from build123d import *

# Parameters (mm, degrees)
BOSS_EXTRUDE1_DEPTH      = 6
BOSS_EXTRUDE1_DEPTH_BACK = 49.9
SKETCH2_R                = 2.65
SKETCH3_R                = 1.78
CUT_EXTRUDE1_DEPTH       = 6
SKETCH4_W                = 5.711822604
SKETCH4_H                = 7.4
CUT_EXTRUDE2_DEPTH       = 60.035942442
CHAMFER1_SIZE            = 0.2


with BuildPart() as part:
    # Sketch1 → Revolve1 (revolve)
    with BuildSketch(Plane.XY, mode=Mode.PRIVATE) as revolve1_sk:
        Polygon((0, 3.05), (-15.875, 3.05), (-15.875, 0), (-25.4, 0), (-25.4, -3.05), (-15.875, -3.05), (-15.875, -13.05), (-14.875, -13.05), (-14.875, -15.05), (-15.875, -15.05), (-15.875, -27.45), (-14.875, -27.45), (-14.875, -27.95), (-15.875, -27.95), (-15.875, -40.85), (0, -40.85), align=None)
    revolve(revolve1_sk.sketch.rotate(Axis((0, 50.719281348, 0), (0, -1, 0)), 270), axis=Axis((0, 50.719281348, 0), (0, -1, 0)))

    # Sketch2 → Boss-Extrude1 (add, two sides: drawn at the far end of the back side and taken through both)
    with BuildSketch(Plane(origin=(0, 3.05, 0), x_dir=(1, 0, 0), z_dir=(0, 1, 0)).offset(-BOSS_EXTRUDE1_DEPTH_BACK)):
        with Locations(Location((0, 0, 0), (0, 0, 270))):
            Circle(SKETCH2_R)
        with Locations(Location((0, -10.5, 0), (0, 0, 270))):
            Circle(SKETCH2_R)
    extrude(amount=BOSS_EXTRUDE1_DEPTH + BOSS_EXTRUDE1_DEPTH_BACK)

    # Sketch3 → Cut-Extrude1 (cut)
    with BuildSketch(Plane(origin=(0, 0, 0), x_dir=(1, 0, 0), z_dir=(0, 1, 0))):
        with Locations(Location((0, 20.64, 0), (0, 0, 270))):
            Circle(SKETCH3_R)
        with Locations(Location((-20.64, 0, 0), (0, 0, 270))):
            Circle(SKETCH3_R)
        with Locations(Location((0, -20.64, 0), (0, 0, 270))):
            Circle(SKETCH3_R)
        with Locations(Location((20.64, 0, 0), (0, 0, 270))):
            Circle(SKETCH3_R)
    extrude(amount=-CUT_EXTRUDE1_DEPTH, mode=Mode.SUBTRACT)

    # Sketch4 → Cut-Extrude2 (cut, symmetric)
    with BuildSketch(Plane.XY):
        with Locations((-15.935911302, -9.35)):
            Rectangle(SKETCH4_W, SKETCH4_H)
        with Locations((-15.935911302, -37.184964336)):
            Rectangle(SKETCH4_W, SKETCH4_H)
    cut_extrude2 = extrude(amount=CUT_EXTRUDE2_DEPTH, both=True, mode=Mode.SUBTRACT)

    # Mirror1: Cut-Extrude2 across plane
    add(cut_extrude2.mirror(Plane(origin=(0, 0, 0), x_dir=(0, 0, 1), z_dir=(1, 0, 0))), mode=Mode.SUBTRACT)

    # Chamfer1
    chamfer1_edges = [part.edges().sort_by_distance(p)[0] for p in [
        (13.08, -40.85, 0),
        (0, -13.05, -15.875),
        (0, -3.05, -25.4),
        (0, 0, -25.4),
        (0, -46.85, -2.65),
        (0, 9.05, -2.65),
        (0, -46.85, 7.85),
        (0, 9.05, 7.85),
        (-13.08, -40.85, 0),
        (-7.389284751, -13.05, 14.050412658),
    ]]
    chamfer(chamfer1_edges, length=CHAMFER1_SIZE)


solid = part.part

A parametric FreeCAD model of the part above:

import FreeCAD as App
import Part
import Sketcher
Q = App.Units.Quantity


def edges_at(feature, points):
    """Names of the edges that pass closest to the given points."""
    edges = feature.Shape.Edges
    near = lambda p: min(range(len(edges)), key=lambda i: edges[i].distToShape(Part.Vertex(*p))[0])
    return sorted({f"Edge{near(p) + 1}" for p in points})


def add_polygon(sketch, points):
    """Adds a closed chain of lines whose ends are joined by coincident constraints."""
    first, n = sketch.GeometryCount, len(points)
    for a, b in zip(points, points[1:] + points[:1]):
        sketch.addGeometry(Part.LineSegment(App.Vector(*a, 0), App.Vector(*b, 0)), False)
    for i in range(n):
        sketch.addConstraint(Sketcher.Constraint("Coincident", first + i, 2, first + (i + 1) % n, 1))

doc = App.newDocument("Part")
params = doc.addObject("Spreadsheet::Sheet", "Params")
for row, (alias, value) in enumerate([
    ("sketch1_width", "1 mm"),
    ("sketch1_height", "10 mm"),
    ("sketch1_height2", "2 mm"),
    ("sketch1_height3", "12.4 mm"),
    ("sketch1_height4", "0.5 mm"),
    ("revolution_angle", "360 deg"),
    ("sketch2_diameter", "5.3 mm"),
    ("pad1_length", "6 mm"),
    ("pad1_length2", "49.9 mm"),
    ("sketch3_diameter", "3.56 mm"),
    ("pocket1_length", "6 mm"),
    ("sketch4_height", "7.4 mm"),
    ("pocket2_length", "120.071885 mm"),
    ("chamfer_size", "0.2 mm"),
], start=1):
    params.set(f"A{row}", alias)
    params.set(f"B{row}", "=" + value)
    params.setAlias(f"B{row}", alias)

body = doc.addObject("PartDesign::Body", "Body")

sketch1 = body.newObject("Sketcher::SketchObject", "Sketch")
sketch1.AttachmentSupport = (doc.getObject("XY_Plane"), [""])
sketch1.MapMode = "FlatFace"
add_polygon(sketch1, [(0, 3), (-15.9, 3), (-15.9, 0), (-25.4, 0), (-25.4, -3), (-15.9, -3), (-15.9, -13.1), (-14.9, -13.1), (-14.9, -15.1), (-15.9, -15.1), (-15.9, -27.4), (-14.9, -27.4), (-14.9, -27.9), (-15.9, -27.9), (-15.9, -40.9), (0, -40.9)])
sketch1.addConstraint(Sketcher.Constraint("Horizontal", 0))
sketch1.addConstraint(Sketcher.Constraint("Vertical", 1))
sketch1.addConstraint(Sketcher.Constraint("Horizontal", 2))
sketch1.addConstraint(Sketcher.Constraint("Vertical", 3))
sketch1.addConstraint(Sketcher.Constraint("Horizontal", 4))
sketch1.addConstraint(Sketcher.Constraint("Vertical", 5))
sketch1.addConstraint(Sketcher.Constraint("Horizontal", 6))
sketch1.addConstraint(Sketcher.Constraint("Vertical", 7))
sketch1.addConstraint(Sketcher.Constraint("Horizontal", 8))
sketch1.addConstraint(Sketcher.Constraint("Vertical", 9))
sketch1.addConstraint(Sketcher.Constraint("Horizontal", 10))
sketch1.addConstraint(Sketcher.Constraint("Vertical", 11))
sketch1.addConstraint(Sketcher.Constraint("Horizontal", 12))
sketch1.addConstraint(Sketcher.Constraint("Vertical", 13))
sketch1.addConstraint(Sketcher.Constraint("Horizontal", 14))
sketch1.addConstraint(Sketcher.Constraint("Vertical", 15))
sketch1.addConstraint(Sketcher.Constraint("Symmetric", 0, 2, 4, 2, -1))
sketch1.addConstraint(Sketcher.Constraint("PointOnObject", 1, 2, -1))
sketch1.addConstraint(Sketcher.Constraint("PointOnObject", 14, 2, -2))
sketch1.addConstraint(Sketcher.Constraint("Vertical", 5, 2, 8, 2))
sketch1.addConstraint(Sketcher.Constraint("Vertical", 7, 2, 10, 2))
sketch1.addConstraint(Sketcher.Constraint("Vertical", 9, 2, 12, 2))
sketch1.addConstraint(Sketcher.Constraint("DistanceX", 6, 1, 6, 2, Q("1 mm")))
sketch1.addConstraint(Sketcher.Constraint("DistanceY", 5, 2, 5, 1, Q("10 mm")))
sketch1.addConstraint(Sketcher.Constraint("DistanceY", 7, 2, 7, 1, Q("2 mm")))
sketch1.addConstraint(Sketcher.Constraint("DistanceY", 9, 2, 9, 1, Q("12.4 mm")))
sketch1.addConstraint(Sketcher.Constraint("DistanceY", 11, 2, 11, 1, Q("0.5 mm")))
sketch1.addConstraint(Sketcher.Constraint("DistanceY", 13, 2, 13, 1, Q("12.9 mm")))
sketch1.addConstraint(Sketcher.Constraint("DistanceY", 15, 1, 15, 2, Q("43.9 mm")))
sketch1.addConstraint(Sketcher.Constraint("DistanceX", 2, 2, -1, 1, Q("25.4 mm")))
sketch1.addConstraint(Sketcher.Constraint("DistanceX", 0, 2, 0, 1, Q("15.875 mm")))
sketch1.setExpression("Constraints[38]", "Params.sketch1_width")
sketch1.setExpression("Constraints[39]", "Params.sketch1_height")
sketch1.setExpression("Constraints[40]", "Params.sketch1_height2")
sketch1.setExpression("Constraints[41]", "Params.sketch1_height3")
sketch1.setExpression("Constraints[42]", "Params.sketch1_height4")
revolution = body.newObject("PartDesign::Revolution", "Revolution")
revolution.Profile = sketch1
revolution.ReferenceAxis = (sketch1, ["V_Axis"])
revolution.setExpression("Angle", "Params.revolution_angle")

sketch2 = body.newObject("Sketcher::SketchObject", "Sketch001")
sketch2.AttachmentSupport = (doc.getObject("XZ_Plane"), [""])
sketch2.MapMode = "FlatFace"
sketch2.AttachmentOffset = App.Placement(App.Vector(0, 0, -3.05), App.Rotation())
sketch2.addGeometry(Part.Circle(App.Vector(0, 0, 0), App.Vector(0, 0, 1), 2.6), False)
sketch2.addGeometry(Part.Circle(App.Vector(0, 10.5, 0), App.Vector(0, 0, 1), 2.6), False)
sketch2.addConstraint(Sketcher.Constraint("Coincident", 0, 3, -1, 1))
sketch2.addConstraint(Sketcher.Constraint("Equal", 0, 1))
sketch2.addConstraint(Sketcher.Constraint("PointOnObject", 1, 3, -2))
sketch2.addConstraint(Sketcher.Constraint("Diameter", 0, Q("5.3 mm")))
sketch2.addConstraint(Sketcher.Constraint("DistanceY", -1, 1, 1, 3, Q("10.5 mm")))
sketch2.setExpression("Constraints[3]", "Params.sketch2_diameter")
pad1 = body.newObject("PartDesign::Pad", "Pad")
pad1.Profile = sketch2
pad1.Type = "TwoLengths"
pad1.setExpression("Length", "Params.pad1_length")
pad1.setExpression("Length2", "Params.pad1_length2")
pad1.Reversed = True

sketch3 = body.newObject("Sketcher::SketchObject", "Sketch002")
sketch3.AttachmentSupport = (doc.getObject("XZ_Plane"), [""])
sketch3.MapMode = "FlatFace"
sketch3.addGeometry(Part.Circle(App.Vector(0, -20.6, 0), App.Vector(0, 0, 1), 1.8), False)
sketch3.addGeometry(Part.Circle(App.Vector(-20.6, 0, 0), App.Vector(0, 0, 1), 1.8), False)
sketch3.addGeometry(Part.Circle(App.Vector(0, 20.6, 0), App.Vector(0, 0, 1), 1.8), False)
sketch3.addGeometry(Part.Circle(App.Vector(20.6, 0, 0), App.Vector(0, 0, 1), 1.8), False)
sketch3.addConstraint(Sketcher.Constraint("Equal", 0, 1))
sketch3.addConstraint(Sketcher.Constraint("Equal", 1, 2))
sketch3.addConstraint(Sketcher.Constraint("Equal", 2, 3))
sketch3.addConstraint(Sketcher.Constraint("Symmetric", 0, 3, 2, 3, -1, 1))
sketch3.addConstraint(Sketcher.Constraint("Symmetric", 1, 3, 3, 3, -1, 1))
sketch3.addConstraint(Sketcher.Constraint("PointOnObject", 0, 3, -2))
sketch3.addConstraint(Sketcher.Constraint("PointOnObject", 1, 3, -1))
sketch3.addConstraint(Sketcher.Constraint("Diameter", 0, Q("3.56 mm")))
sketch3.addConstraint(Sketcher.Constraint("DistanceY", 0, 3, -1, 1, Q("20.64 mm")))
sketch3.addConstraint(Sketcher.Constraint("DistanceX", 1, 3, -1, 1, Q("20.64 mm")))
sketch3.setExpression("Constraints[7]", "Params.sketch3_diameter")
pocket1 = body.newObject("PartDesign::Pocket", "Pocket")
pocket1.Profile = sketch3
pocket1.setExpression("Length", "Params.pocket1_length")
pocket1.Reversed = True

sketch4 = body.newObject("Sketcher::SketchObject", "Sketch003")
sketch4.AttachmentSupport = (doc.getObject("XY_Plane"), [""])
sketch4.MapMode = "FlatFace"
add_polygon(sketch4, [(-19, -6), (-19, -13), (-13, -13), (-13, -6)])
add_polygon(sketch4, [(-19, -33), (-19, -41), (-13, -41), (-13, -33)])
sketch4.addConstraint(Sketcher.Constraint("Vertical", 0))
sketch4.addConstraint(Sketcher.Constraint("Horizontal", 1))
sketch4.addConstraint(Sketcher.Constraint("Vertical", 2))
sketch4.addConstraint(Sketcher.Constraint("Horizontal", 3))
sketch4.addConstraint(Sketcher.Constraint("Vertical", 4))
sketch4.addConstraint(Sketcher.Constraint("Horizontal", 5))
sketch4.addConstraint(Sketcher.Constraint("Vertical", 6))
sketch4.addConstraint(Sketcher.Constraint("Horizontal", 7))
sketch4.addConstraint(Sketcher.Constraint("Vertical", 3, 2, 4, 2))
sketch4.addConstraint(Sketcher.Constraint("Vertical", 2, 2, 5, 2))
sketch4.addConstraint(Sketcher.Constraint("Equal", 2, 4))
sketch4.addConstraint(Sketcher.Constraint("DistanceY", 0, 2, 0, 1, Q("7.4 mm")))
sketch4.addConstraint(Sketcher.Constraint("DistanceY", 0, 2, -1, 1, Q("13.05 mm")))
sketch4.addConstraint(Sketcher.Constraint("DistanceX", 1, 2, -1, 1, Q("13.08 mm")))
sketch4.addConstraint(Sketcher.Constraint("DistanceX", 1, 1, 1, 2, Q("5.711823 mm")))
sketch4.addConstraint(Sketcher.Constraint("DistanceY", 4, 2, -1, 1, Q("40.884964 mm")))
sketch4.setExpression("Constraints[19]", "Params.sketch4_height")
pocket2 = body.newObject("PartDesign::Pocket", "Pocket001")
pocket2.Profile = sketch4
pocket2.setExpression("Length", "Params.pocket2_length")
pocket2.Midplane = True
doc.recompute()

mirrored = body.newObject("PartDesign::Mirrored", "Mirrored")
mirrored.Originals = [pocket2]
mirrored.MirrorPlane = (doc.getObject("YZ_Plane"), [""])
body.Tip = mirrored
doc.recompute()

chamfer = body.newObject("PartDesign::Chamfer", "Chamfer")
chamfer.Base = (mirrored, edges_at(mirrored, [
    (13.08, -40.85, 0),
    (0, -13.05, -15.875),
    (0, -3.05, -25.4),
    (0, 0, -25.4),
    (0, -46.85, -2.65),
    (0, 9.05, -2.65),
    (0, -46.85, 7.85),
    (0, 9.05, 7.85),
    (-13.08, -40.85, 0),
    (-7.389, -13.05, 14.05),
]))
chamfer.setExpression("Size", "Params.chamfer_size")

doc.recompute()
